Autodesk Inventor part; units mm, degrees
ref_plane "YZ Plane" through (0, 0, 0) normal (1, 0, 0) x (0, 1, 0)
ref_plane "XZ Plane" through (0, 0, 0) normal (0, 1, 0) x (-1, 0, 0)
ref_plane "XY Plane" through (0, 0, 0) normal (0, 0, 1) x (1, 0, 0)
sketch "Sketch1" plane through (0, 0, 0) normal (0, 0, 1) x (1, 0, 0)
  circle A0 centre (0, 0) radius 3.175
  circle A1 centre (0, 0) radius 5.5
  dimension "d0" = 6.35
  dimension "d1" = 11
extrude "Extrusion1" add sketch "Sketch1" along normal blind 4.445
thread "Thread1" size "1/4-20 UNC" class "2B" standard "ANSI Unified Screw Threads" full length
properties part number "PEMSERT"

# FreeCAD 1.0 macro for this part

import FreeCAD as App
import Part
import Sketcher

V = App.Vector
Q = App.Units.Quantity

doc = App.newDocument("Part")
body = doc.addObject("PartDesign::Body", "Body")

# Sketch on XY plane
sketch1 = body.newObject("Sketcher::SketchObject", "Sketch")
sketch1.AttachmentSupport = (doc.getObject("XY_Plane"), [""])
sketch1.MapMode = "FlatFace"
sketch1.addGeometry([
    Part.Circle(V(0, 0, 0), V(0, 0, 1), 5.5),
    Part.Circle(V(0, 0, 0), V(0, 0, 1), 3.175),
], False)
sketch1.addConstraint([
    Sketcher.Constraint("Coincident", 0, 3, -1, 1),
    Sketcher.Constraint("Coincident", 1, 3, -1, 1),
    Sketcher.Constraint("Diameter", 1, Q("0.25 in")),
    Sketcher.Constraint("Diameter", 0, 11.0),
])
pad1 = body.newObject("PartDesign::Pad", "Pad")
pad1.Profile = sketch1
pad1.Length = Q("0.175 in")

doc.recompute()
